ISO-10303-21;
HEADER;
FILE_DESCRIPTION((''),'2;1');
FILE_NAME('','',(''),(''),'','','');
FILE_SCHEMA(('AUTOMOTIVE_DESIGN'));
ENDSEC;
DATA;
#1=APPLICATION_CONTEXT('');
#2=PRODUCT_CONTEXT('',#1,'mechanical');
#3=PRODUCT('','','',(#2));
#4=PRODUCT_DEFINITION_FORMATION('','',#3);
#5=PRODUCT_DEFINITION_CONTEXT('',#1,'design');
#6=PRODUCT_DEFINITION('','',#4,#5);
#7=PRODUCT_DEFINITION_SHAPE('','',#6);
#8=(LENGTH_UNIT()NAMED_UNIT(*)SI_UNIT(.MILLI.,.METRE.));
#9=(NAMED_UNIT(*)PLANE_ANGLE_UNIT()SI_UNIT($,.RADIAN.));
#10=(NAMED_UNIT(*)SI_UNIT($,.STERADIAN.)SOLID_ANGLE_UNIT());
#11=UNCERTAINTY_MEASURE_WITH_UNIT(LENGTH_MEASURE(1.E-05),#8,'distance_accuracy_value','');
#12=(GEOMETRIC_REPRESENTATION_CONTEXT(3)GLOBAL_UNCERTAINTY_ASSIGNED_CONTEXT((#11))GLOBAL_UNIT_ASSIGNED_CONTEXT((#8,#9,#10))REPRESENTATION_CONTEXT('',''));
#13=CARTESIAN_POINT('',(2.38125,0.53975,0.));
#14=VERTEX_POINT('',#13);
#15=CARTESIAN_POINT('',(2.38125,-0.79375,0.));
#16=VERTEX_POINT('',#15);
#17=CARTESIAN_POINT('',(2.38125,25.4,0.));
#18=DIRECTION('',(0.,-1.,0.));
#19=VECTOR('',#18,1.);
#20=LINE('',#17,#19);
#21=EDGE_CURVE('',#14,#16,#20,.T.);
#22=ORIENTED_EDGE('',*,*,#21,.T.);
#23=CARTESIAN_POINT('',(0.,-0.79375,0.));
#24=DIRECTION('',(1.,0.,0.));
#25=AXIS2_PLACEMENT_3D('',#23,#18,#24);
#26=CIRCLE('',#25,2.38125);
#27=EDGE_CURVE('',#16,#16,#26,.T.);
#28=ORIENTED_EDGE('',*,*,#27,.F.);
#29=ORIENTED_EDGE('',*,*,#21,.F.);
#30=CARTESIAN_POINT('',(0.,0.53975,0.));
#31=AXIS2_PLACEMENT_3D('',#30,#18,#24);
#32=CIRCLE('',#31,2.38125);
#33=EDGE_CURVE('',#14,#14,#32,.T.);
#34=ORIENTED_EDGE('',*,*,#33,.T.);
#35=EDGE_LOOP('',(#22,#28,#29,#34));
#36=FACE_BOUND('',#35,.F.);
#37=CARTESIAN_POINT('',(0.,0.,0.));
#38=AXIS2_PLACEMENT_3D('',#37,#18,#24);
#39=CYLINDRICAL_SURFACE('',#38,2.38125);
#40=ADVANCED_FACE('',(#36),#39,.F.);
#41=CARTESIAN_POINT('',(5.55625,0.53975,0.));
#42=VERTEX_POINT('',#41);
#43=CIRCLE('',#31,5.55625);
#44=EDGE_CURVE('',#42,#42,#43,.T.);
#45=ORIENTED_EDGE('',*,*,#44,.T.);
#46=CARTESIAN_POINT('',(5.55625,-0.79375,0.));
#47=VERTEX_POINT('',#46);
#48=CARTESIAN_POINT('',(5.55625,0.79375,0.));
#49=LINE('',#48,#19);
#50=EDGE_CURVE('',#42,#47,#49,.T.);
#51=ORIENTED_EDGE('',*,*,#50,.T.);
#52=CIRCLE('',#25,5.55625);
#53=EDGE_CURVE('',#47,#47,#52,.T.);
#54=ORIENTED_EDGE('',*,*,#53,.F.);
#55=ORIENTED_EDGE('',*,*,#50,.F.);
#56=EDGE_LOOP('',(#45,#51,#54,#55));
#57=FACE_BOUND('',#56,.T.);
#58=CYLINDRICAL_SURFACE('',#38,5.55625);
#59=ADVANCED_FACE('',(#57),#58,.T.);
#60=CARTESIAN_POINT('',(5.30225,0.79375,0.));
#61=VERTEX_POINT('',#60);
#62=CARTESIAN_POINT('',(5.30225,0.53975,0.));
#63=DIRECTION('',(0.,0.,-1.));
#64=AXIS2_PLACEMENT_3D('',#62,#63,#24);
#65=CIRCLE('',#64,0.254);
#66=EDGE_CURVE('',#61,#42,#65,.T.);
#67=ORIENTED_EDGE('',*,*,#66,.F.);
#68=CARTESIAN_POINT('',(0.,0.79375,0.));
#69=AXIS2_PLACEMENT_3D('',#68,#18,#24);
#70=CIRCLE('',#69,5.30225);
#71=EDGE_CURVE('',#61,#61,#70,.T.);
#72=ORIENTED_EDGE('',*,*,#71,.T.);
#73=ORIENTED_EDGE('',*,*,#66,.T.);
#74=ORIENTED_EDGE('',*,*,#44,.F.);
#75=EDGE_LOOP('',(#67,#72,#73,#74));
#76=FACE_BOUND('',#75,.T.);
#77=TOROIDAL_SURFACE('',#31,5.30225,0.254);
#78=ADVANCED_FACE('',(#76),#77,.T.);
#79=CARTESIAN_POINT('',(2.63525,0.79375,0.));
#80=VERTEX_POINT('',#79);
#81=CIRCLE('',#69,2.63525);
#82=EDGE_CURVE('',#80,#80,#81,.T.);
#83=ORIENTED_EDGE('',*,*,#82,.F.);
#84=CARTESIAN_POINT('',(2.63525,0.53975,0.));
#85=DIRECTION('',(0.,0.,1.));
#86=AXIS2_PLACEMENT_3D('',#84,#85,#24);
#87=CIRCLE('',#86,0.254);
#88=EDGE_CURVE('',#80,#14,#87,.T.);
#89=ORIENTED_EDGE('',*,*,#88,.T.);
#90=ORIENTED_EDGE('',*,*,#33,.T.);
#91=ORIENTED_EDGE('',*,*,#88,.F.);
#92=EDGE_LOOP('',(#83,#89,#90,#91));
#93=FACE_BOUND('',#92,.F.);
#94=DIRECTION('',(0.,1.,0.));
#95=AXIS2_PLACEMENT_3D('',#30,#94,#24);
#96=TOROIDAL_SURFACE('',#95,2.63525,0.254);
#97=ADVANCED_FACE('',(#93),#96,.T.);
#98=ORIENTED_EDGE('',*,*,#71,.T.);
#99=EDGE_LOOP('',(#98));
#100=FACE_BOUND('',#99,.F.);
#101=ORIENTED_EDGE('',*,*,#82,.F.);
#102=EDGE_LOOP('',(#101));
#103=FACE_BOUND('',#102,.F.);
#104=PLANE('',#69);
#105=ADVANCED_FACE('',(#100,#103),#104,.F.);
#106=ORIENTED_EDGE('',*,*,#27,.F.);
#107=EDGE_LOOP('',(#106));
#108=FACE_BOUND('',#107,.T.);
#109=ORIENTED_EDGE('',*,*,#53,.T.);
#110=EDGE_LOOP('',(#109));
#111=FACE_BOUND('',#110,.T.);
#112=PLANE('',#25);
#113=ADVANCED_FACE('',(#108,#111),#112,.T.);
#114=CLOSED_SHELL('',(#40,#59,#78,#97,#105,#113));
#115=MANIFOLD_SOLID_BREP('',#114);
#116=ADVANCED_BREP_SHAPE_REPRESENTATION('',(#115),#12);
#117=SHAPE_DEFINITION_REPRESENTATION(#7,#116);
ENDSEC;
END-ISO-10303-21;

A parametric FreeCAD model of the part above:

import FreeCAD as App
import Part
import Sketcher
from FreeCAD import Vector
Q = App.Units.Quantity


def edges_at(feature, points):
    """Names of the edges that pass closest to the given points."""
    edges = feature.Shape.Edges
    near = lambda p: min(range(len(edges)), key=lambda i: edges[i].distToShape(Part.Vertex(*p))[0])
    return sorted({f"Edge{near(p) + 1}" for p in points})

doc = App.newDocument("Part")
body = doc.addObject("PartDesign::Body", "Body")

# Sketch on XZ plane
sketch1 = body.newObject("Sketcher::SketchObject", "Sketch")
sketch1.AttachmentSupport = (doc.getObject("XZ_Plane"), [""])
sketch1.MapMode = "FlatFace"
sketch1.addGeometry(Part.Circle(Vector(0, 0, 0), Vector(0, 0, 1), 6), False)
sketch1.addConstraint([
    Sketcher.Constraint("Coincident", 0, 3, -1, 1),
    Sketcher.Constraint("Diameter", 0, Q("0.4375 in")),
])
pad1 = body.newObject("PartDesign::Pad", "Pad")
pad1.Profile = sketch1
pad1.Length = Q("0.0625 in")
pad1.Midplane = True

# Sketch on XZ plane
sketch2 = body.newObject("Sketcher::SketchObject", "Sketch001")
sketch2.AttachmentSupport = (doc.getObject("XZ_Plane"), [""])
sketch2.MapMode = "FlatFace"
sketch2.addGeometry(Part.Circle(Vector(0, 0, 0), Vector(0, 0, 1), 2.4), False)
sketch2.addConstraint([
    Sketcher.Constraint("Coincident", 0, 3, -1, 1),
    Sketcher.Constraint("Diameter", 0, Q("0.1875 in")),
])
pocket1 = body.newObject("PartDesign::Pocket", "Pocket")
pocket1.Profile = sketch2
pocket1.Length = Q("2 in")
pocket1.Midplane = True
doc.recompute()

fillet = body.newObject("PartDesign::Fillet", "Fillet")
fillet.Base = (pocket1, edges_at(pocket1, [(-2.381, 0.794, 0)]))
fillet.Radius = Q("0.01 in")
doc.recompute()

fillet2 = body.newObject("PartDesign::Fillet", "Fillet001")
fillet2.Base = (fillet, edges_at(fillet, [(-5.556, 0.794, 0)]))
fillet2.Radius = Q("0.01 in")

doc.recompute()
